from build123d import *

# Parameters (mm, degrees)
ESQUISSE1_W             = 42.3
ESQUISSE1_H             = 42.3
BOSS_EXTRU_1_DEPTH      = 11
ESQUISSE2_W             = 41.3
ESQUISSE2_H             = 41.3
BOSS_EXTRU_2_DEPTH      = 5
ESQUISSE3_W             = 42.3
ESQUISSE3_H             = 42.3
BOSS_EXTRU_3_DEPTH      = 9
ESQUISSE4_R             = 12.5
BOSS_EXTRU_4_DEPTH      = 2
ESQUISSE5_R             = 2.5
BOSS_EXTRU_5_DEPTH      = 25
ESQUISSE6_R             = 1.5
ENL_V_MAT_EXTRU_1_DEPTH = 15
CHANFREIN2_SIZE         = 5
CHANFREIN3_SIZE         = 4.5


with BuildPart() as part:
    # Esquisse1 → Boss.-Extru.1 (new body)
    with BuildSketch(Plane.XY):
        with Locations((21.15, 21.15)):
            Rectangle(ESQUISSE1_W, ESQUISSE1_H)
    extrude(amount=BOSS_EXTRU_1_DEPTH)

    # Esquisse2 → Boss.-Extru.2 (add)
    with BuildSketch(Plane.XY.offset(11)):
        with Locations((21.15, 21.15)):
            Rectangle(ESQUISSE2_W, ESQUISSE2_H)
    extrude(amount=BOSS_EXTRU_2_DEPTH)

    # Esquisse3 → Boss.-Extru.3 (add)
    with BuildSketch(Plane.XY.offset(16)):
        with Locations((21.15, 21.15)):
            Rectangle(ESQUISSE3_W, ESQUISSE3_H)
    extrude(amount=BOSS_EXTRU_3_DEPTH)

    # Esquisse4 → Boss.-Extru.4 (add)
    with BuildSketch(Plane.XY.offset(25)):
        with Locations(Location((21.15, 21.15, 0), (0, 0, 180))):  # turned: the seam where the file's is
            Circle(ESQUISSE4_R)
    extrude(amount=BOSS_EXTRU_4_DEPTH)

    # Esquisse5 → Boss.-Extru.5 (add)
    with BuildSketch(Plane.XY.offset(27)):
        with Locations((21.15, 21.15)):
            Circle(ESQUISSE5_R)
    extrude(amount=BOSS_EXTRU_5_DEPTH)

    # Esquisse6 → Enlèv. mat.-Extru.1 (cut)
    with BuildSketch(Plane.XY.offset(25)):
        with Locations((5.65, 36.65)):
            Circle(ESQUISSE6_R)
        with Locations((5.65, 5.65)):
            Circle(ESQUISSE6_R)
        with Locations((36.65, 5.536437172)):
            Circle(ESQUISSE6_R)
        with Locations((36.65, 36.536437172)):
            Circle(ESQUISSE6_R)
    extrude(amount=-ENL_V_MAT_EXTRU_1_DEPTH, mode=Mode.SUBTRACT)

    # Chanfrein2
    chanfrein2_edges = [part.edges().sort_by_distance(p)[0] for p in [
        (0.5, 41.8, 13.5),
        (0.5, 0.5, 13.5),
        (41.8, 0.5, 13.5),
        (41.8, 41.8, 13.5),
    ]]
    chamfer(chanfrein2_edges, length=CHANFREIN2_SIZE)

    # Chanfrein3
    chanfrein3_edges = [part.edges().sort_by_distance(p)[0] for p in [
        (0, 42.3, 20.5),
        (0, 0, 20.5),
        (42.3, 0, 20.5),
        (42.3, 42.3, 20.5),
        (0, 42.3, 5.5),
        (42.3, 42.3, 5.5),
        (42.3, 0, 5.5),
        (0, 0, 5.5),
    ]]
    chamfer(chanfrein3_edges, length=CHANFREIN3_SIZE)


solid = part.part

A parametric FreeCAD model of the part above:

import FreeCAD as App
import Part
import Sketcher

V = App.Vector


def edges_at(feature, points):
    """Names of the edges that pass closest to the given points."""
    edges = feature.Shape.Edges
    near = lambda p: min(range(len(edges)), key=lambda i: edges[i].distToShape(Part.Vertex(*p))[0])
    return sorted({f"Edge{near(p) + 1}" for p in points})

doc = App.newDocument("Part")
body = doc.addObject("PartDesign::Body", "Body")

# Sketch on XY plane
sketch1 = body.newObject("Sketcher::SketchObject", "Sketch")
sketch1.AttachmentSupport = (doc.getObject("XY_Plane"), [""])
sketch1.MapMode = "FlatFace"
sketch1.addGeometry([
    Part.LineSegment(V(0, 42, 0), V(0, 0, 0)),
    Part.LineSegment(V(0, 0, 0), V(42, 0, 0)),
    Part.LineSegment(V(42, 0, 0), V(42, 42, 0)),
    Part.LineSegment(V(42, 42, 0), V(0, 42, 0)),
], False)
sketch1.addConstraint([
    Sketcher.Constraint("Coincident", 0, 2, 1, 1),
    Sketcher.Constraint("Coincident", 1, 2, 2, 1),
    Sketcher.Constraint("Coincident", 2, 2, 3, 1),
    Sketcher.Constraint("Coincident", 3, 2, 0, 1),
    Sketcher.Constraint("Vertical", 0),
    Sketcher.Constraint("Horizontal", 1),
    Sketcher.Constraint("Vertical", 2),
    Sketcher.Constraint("Horizontal", 3),
    Sketcher.Constraint("Coincident", 0, 2, -1, 1),
    Sketcher.Constraint("Equal", 3, 0),
    Sketcher.Constraint("DistanceX", 1, 1, 1, 2, 42.3),
])
pad1 = body.newObject("PartDesign::Pad", "Pad")
pad1.Profile = sketch1
pad1.Length = 11

# Sketch on XY plane
sketch2 = body.newObject("Sketcher::SketchObject", "Sketch001")
sketch2.AttachmentSupport = (doc.getObject("XY_Plane"), [""])
sketch2.MapMode = "FlatFace"
sketch2.AttachmentOffset = App.Placement(V(0, 0, 11), App.Rotation())
sketch2.addGeometry([
    Part.LineSegment(V(0, 42, 0), V(0, 0, 0)),
    Part.LineSegment(V(0, 0, 0), V(42, 0, 0)),
    Part.LineSegment(V(42, 0, 0), V(42, 42, 0)),
    Part.LineSegment(V(42, 42, 0), V(0, 42, 0)),
], False)
sketch2.addConstraint([
    Sketcher.Constraint("Coincident", 0, 2, 1, 1),
    Sketcher.Constraint("Coincident", 1, 2, 2, 1),
    Sketcher.Constraint("Coincident", 2, 2, 3, 1),
    Sketcher.Constraint("Coincident", 3, 2, 0, 1),
    Sketcher.Constraint("Vertical", 0),
    Sketcher.Constraint("Horizontal", 1),
    Sketcher.Constraint("Vertical", 2),
    Sketcher.Constraint("Horizontal", 3),
    Sketcher.Constraint("Equal", 3, 0),
    Sketcher.Constraint("DistanceX", 1, 1, 1, 2, 41.3),
    Sketcher.Constraint("DistanceX", -1, 1, 0, 2, 0.5),
    Sketcher.Constraint("DistanceY", -1, 1, 0, 2, 0.5),
])
pad2 = body.newObject("PartDesign::Pad", "Pad001")
pad2.Profile = sketch2
pad2.Length = 5

# Sketch on XY plane
sketch3 = body.newObject("Sketcher::SketchObject", "Sketch002")
sketch3.AttachmentSupport = (doc.getObject("XY_Plane"), [""])
sketch3.MapMode = "FlatFace"
sketch3.AttachmentOffset = App.Placement(V(0, 0, 16), App.Rotation())
sketch3.addGeometry([
    Part.LineSegment(V(0, 42, 0), V(0, 0, 0)),
    Part.LineSegment(V(0, 0, 0), V(42, 0, 0)),
    Part.LineSegment(V(42, 0, 0), V(42, 42, 0)),
    Part.LineSegment(V(42, 42, 0), V(0, 42, 0)),
], False)
sketch3.addConstraint([
    Sketcher.Constraint("Coincident", 0, 2, 1, 1),
    Sketcher.Constraint("Coincident", 1, 2, 2, 1),
    Sketcher.Constraint("Coincident", 2, 2, 3, 1),
    Sketcher.Constraint("Coincident", 3, 2, 0, 1),
    Sketcher.Constraint("Vertical", 0),
    Sketcher.Constraint("Horizontal", 1),
    Sketcher.Constraint("Vertical", 2),
    Sketcher.Constraint("Horizontal", 3),
    Sketcher.Constraint("Coincident", 0, 2, -1, 1),
    Sketcher.Constraint("Equal", 3, 0),
    Sketcher.Constraint("DistanceX", 1, 1, 1, 2, 42.3),
])
pad3 = body.newObject("PartDesign::Pad", "Pad002")
pad3.Profile = sketch3
pad3.Length = 9

# Sketch on XY plane
sketch4 = body.newObject("Sketcher::SketchObject", "Sketch003")
sketch4.AttachmentSupport = (doc.getObject("XY_Plane"), [""])
sketch4.MapMode = "FlatFace"
sketch4.AttachmentOffset = App.Placement(V(0, 0, 25), App.Rotation())
sketch4.addGeometry(Part.Circle(V(21, 21, 0), V(0, 0, 1), 12), False)
sketch4.addConstraint([
    Sketcher.Constraint("Diameter", 0, 25.0),
    Sketcher.Constraint("DistanceX", -1, 1, 0, 3, 21.15),
    Sketcher.Constraint("DistanceY", -1, 1, 0, 3, 21.15),
])
pad4 = body.newObject("PartDesign::Pad", "Pad003")
pad4.Profile = sketch4
pad4.Length = 2

# Sketch on XY plane
sketch5 = body.newObject("Sketcher::SketchObject", "Sketch004")
sketch5.AttachmentSupport = (doc.getObject("XY_Plane"), [""])
sketch5.MapMode = "FlatFace"
sketch5.AttachmentOffset = App.Placement(V(0, 0, 27), App.Rotation())
sketch5.addGeometry(Part.Circle(V(21.1, 21.1, 0), V(0, 0, 1), 2.5), False)
sketch5.addConstraint([
    Sketcher.Constraint("Diameter", 0, 5.0),
    Sketcher.Constraint("DistanceX", -1, 1, 0, 3, 21.15),
    Sketcher.Constraint("DistanceY", -1, 1, 0, 3, 21.15),
])
pad5 = body.newObject("PartDesign::Pad", "Pad004")
pad5.Profile = sketch5
pad5.Length = 25

# Sketch on XY plane
sketch6 = body.newObject("Sketcher::SketchObject", "Sketch005")
sketch6.AttachmentSupport = (doc.getObject("XY_Plane"), [""])
sketch6.MapMode = "FlatFace"
sketch6.AttachmentOffset = App.Placement(V(0, 0, 25), App.Rotation())
sketch6.addGeometry([
    Part.Circle(V(5.7, 36.6, 0), V(0, 0, 1), 1.5),
    Part.Circle(V(5.7, 5.7, 0), V(0, 0, 1), 1.5),
    Part.Circle(V(36.6, 5.5, 0), V(0, 0, 1), 1.5),
    Part.Circle(V(36.6, 36.5, 0), V(0, 0, 1), 1.5),
], False)
sketch6.addConstraint([
    Sketcher.Constraint("Equal", 0, 1),
    Sketcher.Constraint("Equal", 1, 2),
    Sketcher.Constraint("Equal", 2, 3),
    Sketcher.Constraint("Vertical", 0, 3, 1, 3),
    Sketcher.Constraint("Vertical", 2, 3, 3, 3),
    Sketcher.Constraint("Diameter", 0, 3.0),
    Sketcher.Constraint("DistanceY", 1, 3, 0, 3, 31.0),
    Sketcher.Constraint("DistanceX", 1, 3, 2, 3, 31.0),
    Sketcher.Constraint("DistanceY", 2, 3, 3, 3, 31.0),
    Sketcher.Constraint("DistanceX", -1, 1, 0, 3, 5.65),
    Sketcher.Constraint("DistanceY", -1, 1, 0, 3, 36.65),
    Sketcher.Constraint("DistanceY", -1, 1, 2, 3, 5.536437),
])
pocket1 = body.newObject("PartDesign::Pocket", "Pocket")
pocket1.Profile = sketch6
pocket1.Length = 15
doc.recompute()

chamfer = body.newObject("PartDesign::Chamfer", "Chamfer")
chamfer.Base = (pocket1, edges_at(pocket1, [
    (0.5, 41.8, 13.5),
    (0.5, 0.5, 13.5),
    (41.8, 0.5, 13.5),
    (41.8, 41.8, 13.5),
]))
chamfer.Size = 5
doc.recompute()

chamfer2 = body.newObject("PartDesign::Chamfer", "Chamfer001")
chamfer2.Base = (chamfer, edges_at(chamfer, [
    (0, 42.3, 20.5),
    (0, 0, 20.5),
    (42.3, 0, 20.5),
    (42.3, 42.3, 20.5),
    (0, 42.3, 5.5),
    (42.3, 42.3, 5.5),
    (42.3, 0, 5.5),
    (0, 0, 5.5),
]))
chamfer2.Size = 4.5

doc.recompute()
